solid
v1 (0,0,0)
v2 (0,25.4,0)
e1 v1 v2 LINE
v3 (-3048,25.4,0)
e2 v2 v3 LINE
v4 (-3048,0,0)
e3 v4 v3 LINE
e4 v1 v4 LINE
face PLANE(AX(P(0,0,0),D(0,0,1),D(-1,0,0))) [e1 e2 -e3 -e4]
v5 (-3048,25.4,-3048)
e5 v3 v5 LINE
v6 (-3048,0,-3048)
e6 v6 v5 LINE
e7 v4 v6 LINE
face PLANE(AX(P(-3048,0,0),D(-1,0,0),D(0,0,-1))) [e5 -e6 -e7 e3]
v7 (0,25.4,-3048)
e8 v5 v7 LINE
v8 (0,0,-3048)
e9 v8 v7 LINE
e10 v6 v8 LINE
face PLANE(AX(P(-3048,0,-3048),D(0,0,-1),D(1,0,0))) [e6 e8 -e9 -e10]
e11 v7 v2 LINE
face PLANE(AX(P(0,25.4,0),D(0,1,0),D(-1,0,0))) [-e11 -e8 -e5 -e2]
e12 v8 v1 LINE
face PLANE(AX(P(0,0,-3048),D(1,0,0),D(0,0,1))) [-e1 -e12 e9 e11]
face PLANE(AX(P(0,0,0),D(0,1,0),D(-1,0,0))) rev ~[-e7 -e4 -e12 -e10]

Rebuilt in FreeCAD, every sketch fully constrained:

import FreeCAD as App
import Part
import Sketcher
Q = App.Units.Quantity

doc = App.newDocument("Part")
body = doc.addObject("PartDesign::Body", "Body")

sketch1 = body.newObject("Sketcher::SketchObject", "Sketch")
sketch1.AttachmentSupport = (doc.getObject("XZ_Plane"), [""])
sketch1.MapMode = "FlatFace"
sketch1.addGeometry(Part.LineSegment(App.Vector(-3048, 0, 0), App.Vector(0, 0, 0)), False)
sketch1.addGeometry(Part.LineSegment(App.Vector(0, 0, 0), App.Vector(0, -3048, 0)), False)
sketch1.addGeometry(Part.LineSegment(App.Vector(0, -3048, 0), App.Vector(-3048, -3048, 0)), False)
sketch1.addGeometry(Part.LineSegment(App.Vector(-3048, -3048, 0), App.Vector(-3048, 0, 0)), False)
sketch1.addConstraint(Sketcher.Constraint("Coincident", 0, 2, 1, 1))
sketch1.addConstraint(Sketcher.Constraint("Coincident", 1, 2, 2, 1))
sketch1.addConstraint(Sketcher.Constraint("Coincident", 2, 2, 3, 1))
sketch1.addConstraint(Sketcher.Constraint("Coincident", 3, 2, 0, 1))
sketch1.addConstraint(Sketcher.Constraint("Horizontal", 0))
sketch1.addConstraint(Sketcher.Constraint("Vertical", 1))
sketch1.addConstraint(Sketcher.Constraint("Horizontal", 2))
sketch1.addConstraint(Sketcher.Constraint("Vertical", 3))
sketch1.addConstraint(Sketcher.Constraint("Coincident", 0, 2, -1, 1))
sketch1.addConstraint(Sketcher.Constraint("Equal", 2, 1))
sketch1.addConstraint(Sketcher.Constraint("DistanceX", 0, 1, 0, 2, Q("120 in")))
pad1 = body.newObject("PartDesign::Pad", "Pad")
pad1.Profile = sketch1
pad1.Length = Q("1 in")
pad1.Reversed = True

doc.recompute()
